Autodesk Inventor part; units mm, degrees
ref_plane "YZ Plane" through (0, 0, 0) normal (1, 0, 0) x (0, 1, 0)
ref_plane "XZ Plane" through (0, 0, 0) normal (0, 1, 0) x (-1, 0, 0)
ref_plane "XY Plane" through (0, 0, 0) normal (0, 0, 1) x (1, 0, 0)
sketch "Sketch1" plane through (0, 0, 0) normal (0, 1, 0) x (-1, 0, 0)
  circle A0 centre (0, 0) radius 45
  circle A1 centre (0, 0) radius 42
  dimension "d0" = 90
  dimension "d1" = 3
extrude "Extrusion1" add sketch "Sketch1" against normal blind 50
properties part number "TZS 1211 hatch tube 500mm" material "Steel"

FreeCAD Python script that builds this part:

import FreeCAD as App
import Part
import Sketcher
Q = App.Units.Quantity

doc = App.newDocument("Part")
body = doc.addObject("PartDesign::Body", "Body")

sketch1 = body.newObject("Sketcher::SketchObject", "Sketch")
sketch1.AttachmentSupport = (doc.getObject("XZ_Plane"), [""])
sketch1.MapMode = "FlatFace"
sketch1.addGeometry([
    Part.Circle(App.Vector(0, 0, 0), App.Vector(0, 0, 1), 45),
    Part.Circle(App.Vector(0, 0, 0), App.Vector(0, 0, 1), 42),
], False)
sketch1.addConstraint([
    Sketcher.Constraint("Coincident", 0, 3, -1, 1),
    Sketcher.Constraint("Coincident", 1, 3, -1, 1),
    Sketcher.Constraint("Diameter", 0, Q("90 mm")),
    Sketcher.Constraint("Diameter", 1, Q("84 mm")),
])
pad1 = body.newObject("PartDesign::Pad", "Pad")
pad1.Profile = sketch1
pad1.Length = 50

doc.recompute()
